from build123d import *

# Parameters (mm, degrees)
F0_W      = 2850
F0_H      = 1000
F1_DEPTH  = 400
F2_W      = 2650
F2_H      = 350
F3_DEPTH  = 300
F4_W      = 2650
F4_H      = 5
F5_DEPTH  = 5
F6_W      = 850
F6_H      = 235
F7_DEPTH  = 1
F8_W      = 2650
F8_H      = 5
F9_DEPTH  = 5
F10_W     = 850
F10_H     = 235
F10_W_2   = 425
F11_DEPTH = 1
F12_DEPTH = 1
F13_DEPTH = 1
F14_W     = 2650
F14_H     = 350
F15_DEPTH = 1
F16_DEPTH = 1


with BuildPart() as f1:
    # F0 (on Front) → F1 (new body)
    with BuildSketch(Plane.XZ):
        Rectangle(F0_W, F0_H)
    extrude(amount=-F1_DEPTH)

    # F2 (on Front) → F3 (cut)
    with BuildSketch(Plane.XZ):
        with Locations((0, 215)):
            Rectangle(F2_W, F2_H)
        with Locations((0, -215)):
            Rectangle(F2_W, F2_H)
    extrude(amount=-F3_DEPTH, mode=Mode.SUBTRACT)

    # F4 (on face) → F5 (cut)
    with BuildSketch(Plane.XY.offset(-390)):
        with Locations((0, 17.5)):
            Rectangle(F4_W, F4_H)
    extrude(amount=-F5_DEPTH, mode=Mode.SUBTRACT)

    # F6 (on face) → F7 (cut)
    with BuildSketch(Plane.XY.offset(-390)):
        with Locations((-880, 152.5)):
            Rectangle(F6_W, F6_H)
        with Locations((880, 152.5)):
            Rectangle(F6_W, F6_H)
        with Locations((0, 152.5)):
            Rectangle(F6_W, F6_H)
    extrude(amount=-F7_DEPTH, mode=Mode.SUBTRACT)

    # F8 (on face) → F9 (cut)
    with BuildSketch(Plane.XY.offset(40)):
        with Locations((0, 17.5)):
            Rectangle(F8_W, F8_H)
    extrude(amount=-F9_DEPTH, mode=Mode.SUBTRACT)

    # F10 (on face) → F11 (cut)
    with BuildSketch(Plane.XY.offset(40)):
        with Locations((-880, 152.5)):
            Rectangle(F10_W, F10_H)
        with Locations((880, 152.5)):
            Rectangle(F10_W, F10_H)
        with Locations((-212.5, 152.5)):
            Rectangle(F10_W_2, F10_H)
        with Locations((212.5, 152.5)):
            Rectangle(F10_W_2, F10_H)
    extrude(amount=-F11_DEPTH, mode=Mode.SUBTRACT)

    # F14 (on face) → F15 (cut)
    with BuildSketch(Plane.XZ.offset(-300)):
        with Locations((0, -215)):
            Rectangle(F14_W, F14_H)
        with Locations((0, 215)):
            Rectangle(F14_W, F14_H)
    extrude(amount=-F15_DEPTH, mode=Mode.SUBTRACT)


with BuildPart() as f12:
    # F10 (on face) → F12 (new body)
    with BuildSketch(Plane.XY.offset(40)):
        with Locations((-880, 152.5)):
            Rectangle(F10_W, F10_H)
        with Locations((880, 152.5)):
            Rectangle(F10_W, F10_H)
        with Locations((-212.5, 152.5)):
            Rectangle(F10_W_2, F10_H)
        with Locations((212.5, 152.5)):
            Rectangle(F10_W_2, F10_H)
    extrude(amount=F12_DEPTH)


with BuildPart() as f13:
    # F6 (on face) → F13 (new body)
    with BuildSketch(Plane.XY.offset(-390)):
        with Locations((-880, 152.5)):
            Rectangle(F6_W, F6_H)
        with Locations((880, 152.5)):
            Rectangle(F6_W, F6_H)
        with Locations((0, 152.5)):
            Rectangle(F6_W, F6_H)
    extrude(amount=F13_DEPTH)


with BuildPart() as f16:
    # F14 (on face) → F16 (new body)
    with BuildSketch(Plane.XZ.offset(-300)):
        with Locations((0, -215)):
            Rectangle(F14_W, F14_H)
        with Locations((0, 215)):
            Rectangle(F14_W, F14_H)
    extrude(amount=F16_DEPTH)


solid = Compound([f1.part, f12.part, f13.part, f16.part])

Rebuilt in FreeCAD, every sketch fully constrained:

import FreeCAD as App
import Part
import Sketcher

doc = App.newDocument("Part")
params = doc.addObject("Spreadsheet::Sheet", "Params")
for row, (alias, value) in enumerate([
    ("sketch1_width", "2850 mm"),
    ("sketch1_height", "1000 mm"),
    ("pad1_length", "400 mm"),
    ("sketch2_width", "2650 mm"),
    ("sketch2_height", "350 mm"),
    ("pocket1_length", "300 mm"),
    ("sketch3_width", "2650 mm"),
    ("sketch3_height", "5 mm"),
    ("pocket2_length", "5 mm"),
    ("sketch4_width", "850 mm"),
    ("sketch4_height", "235 mm"),
    ("pocket3_length", "1 mm"),
    ("sketch5_width", "2650 mm"),
    ("sketch5_height", "5 mm"),
    ("pocket4_length", "5 mm"),
    ("sketch6_width", "850 mm"),
    ("sketch6_height", "235 mm"),
    ("pocket5_length", "1 mm"),
    ("sketch7_width", "2650 mm"),
    ("sketch7_height", "350 mm"),
    ("pocket6_length", "1 mm"),
    ("sketch8_width", "850 mm"),
    ("sketch8_height", "235 mm"),
    ("pad2_length", "1 mm"),
    ("sketch9_width", "850 mm"),
    ("sketch9_height", "235 mm"),
    ("pad3_length", "1 mm"),
    ("sketch10_width", "2650 mm"),
    ("sketch10_height", "350 mm"),
    ("pad4_length", "1 mm"),
], start=1):
    params.set(f"A{row}", alias)
    params.set(f"B{row}", "=" + value)
    params.setAlias(f"B{row}", alias)

body = doc.addObject("PartDesign::Body", "Body")

# Sketch on XZ plane
sketch1 = body.newObject("Sketcher::SketchObject", "Sketch")
sketch1.AttachmentSupport = (doc.getObject("XZ_Plane"), [""])
sketch1.MapMode = "FlatFace"
sketch1.addGeometry(Part.LineSegment(App.Vector(-1425, 500, 0), App.Vector(-1425, -500, 0)), False)
sketch1.addGeometry(Part.LineSegment(App.Vector(-1425, -500, 0), App.Vector(1425, -500, 0)), False)
sketch1.addGeometry(Part.LineSegment(App.Vector(1425, -500, 0), App.Vector(1425, 500, 0)), False)
sketch1.addGeometry(Part.LineSegment(App.Vector(1425, 500, 0), App.Vector(-1425, 500, 0)), False)
sketch1.addConstraint(Sketcher.Constraint("Coincident", 0, 2, 1, 1))
sketch1.addConstraint(Sketcher.Constraint("Coincident", 1, 2, 2, 1))
sketch1.addConstraint(Sketcher.Constraint("Coincident", 2, 2, 3, 1))
sketch1.addConstraint(Sketcher.Constraint("Coincident", 3, 2, 0, 1))
sketch1.addConstraint(Sketcher.Constraint("Vertical", 0))
sketch1.addConstraint(Sketcher.Constraint("Horizontal", 1))
sketch1.addConstraint(Sketcher.Constraint("Vertical", 2))
sketch1.addConstraint(Sketcher.Constraint("Horizontal", 3))
sketch1.addConstraint(Sketcher.Constraint("Symmetric", 0, 2, 2, 2, -1, 1))
sketch1.addConstraint(Sketcher.Constraint("DistanceX", 1, 1, 1, 2, 2850.0))
sketch1.addConstraint(Sketcher.Constraint("DistanceY", 0, 2, 0, 1, 1000.0))
sketch1.setExpression("Constraints[9]", "Params.sketch1_width")
sketch1.setExpression("Constraints[10]", "Params.sketch1_height")
pad1 = body.newObject("PartDesign::Pad", "Pad")
pad1.Profile = sketch1
pad1.setExpression("Length", "Params.pad1_length")
pad1.Reversed = True

# Sketch on XZ plane
sketch2 = body.newObject("Sketcher::SketchObject", "Sketch001")
sketch2.AttachmentSupport = (doc.getObject("XZ_Plane"), [""])
sketch2.MapMode = "FlatFace"
sketch2.addGeometry(Part.LineSegment(App.Vector(-1325, 390, 0), App.Vector(-1325, 40, 0)), False)
sketch2.addGeometry(Part.LineSegment(App.Vector(-1325, 40, 0), App.Vector(1325, 40, 0)), False)
sketch2.addGeometry(Part.LineSegment(App.Vector(1325, 40, 0), App.Vector(1325, 390, 0)), False)
sketch2.addGeometry(Part.LineSegment(App.Vector(1325, 390, 0), App.Vector(-1325, 390, 0)), False)
sketch2.addGeometry(Part.LineSegment(App.Vector(-1325, -40, 0), App.Vector(-1325, -390, 0)), False)
sketch2.addGeometry(Part.LineSegment(App.Vector(-1325, -390, 0), App.Vector(1325, -390, 0)), False)
sketch2.addGeometry(Part.LineSegment(App.Vector(1325, -390, 0), App.Vector(1325, -40, 0)), False)
sketch2.addGeometry(Part.LineSegment(App.Vector(1325, -40, 0), App.Vector(-1325, -40, 0)), False)
sketch2.addConstraint(Sketcher.Constraint("Coincident", 0, 2, 1, 1))
sketch2.addConstraint(Sketcher.Constraint("Coincident", 1, 2, 2, 1))
sketch2.addConstraint(Sketcher.Constraint("Coincident", 2, 2, 3, 1))
sketch2.addConstraint(Sketcher.Constraint("Coincident", 3, 2, 0, 1))
sketch2.addConstraint(Sketcher.Constraint("Coincident", 4, 2, 5, 1))
sketch2.addConstraint(Sketcher.Constraint("Coincident", 5, 2, 6, 1))
sketch2.addConstraint(Sketcher.Constraint("Coincident", 6, 2, 7, 1))
sketch2.addConstraint(Sketcher.Constraint("Coincident", 7, 2, 4, 1))
sketch2.addConstraint(Sketcher.Constraint("Vertical", 0))
sketch2.addConstraint(Sketcher.Constraint("Horizontal", 1))
sketch2.addConstraint(Sketcher.Constraint("Vertical", 2))
sketch2.addConstraint(Sketcher.Constraint("Horizontal", 3))
sketch2.addConstraint(Sketcher.Constraint("Vertical", 4))
sketch2.addConstraint(Sketcher.Constraint("Horizontal", 5))
sketch2.addConstraint(Sketcher.Constraint("Vertical", 6))
sketch2.addConstraint(Sketcher.Constraint("Horizontal", 7))
sketch2.addConstraint(Sketcher.Constraint("Symmetric", 2, 2, 4, 2, -1, 1))
sketch2.addConstraint(Sketcher.Constraint("Symmetric", 0, 2, 6, 2, -1, 1))
sketch2.addConstraint(Sketcher.Constraint("Vertical", 3, 2, 4, 2))
sketch2.addConstraint(Sketcher.Constraint("DistanceX", 1, 1, 1, 2, 2650.0))
sketch2.addConstraint(Sketcher.Constraint("DistanceY", 0, 2, 0, 1, 350.0))
sketch2.addConstraint(Sketcher.Constraint("DistanceY", -1, 1, 0, 2, 40.0))
sketch2.setExpression("Constraints[19]", "Params.sketch2_width")
sketch2.setExpression("Constraints[20]", "Params.sketch2_height")
pocket1 = body.newObject("PartDesign::Pocket", "Pocket")
pocket1.Profile = sketch2
pocket1.setExpression("Length", "Params.pocket1_length")

# Sketch on XY plane
sketch3 = body.newObject("Sketcher::SketchObject", "Sketch002")
sketch3.AttachmentSupport = (doc.getObject("XY_Plane"), [""])
sketch3.MapMode = "FlatFace"
sketch3.AttachmentOffset = App.Placement(App.Vector(0, 0, -390), App.Rotation())
sketch3.addGeometry(Part.LineSegment(App.Vector(-1325, 20, 0), App.Vector(-1325, 15, 0)), False)
sketch3.addGeometry(Part.LineSegment(App.Vector(-1325, 15, 0), App.Vector(1325, 15, 0)), False)
sketch3.addGeometry(Part.LineSegment(App.Vector(1325, 15, 0), App.Vector(1325, 20, 0)), False)
sketch3.addGeometry(Part.LineSegment(App.Vector(1325, 20, 0), App.Vector(-1325, 20, 0)), False)
sketch3.addConstraint(Sketcher.Constraint("Coincident", 0, 2, 1, 1))
sketch3.addConstraint(Sketcher.Constraint("Coincident", 1, 2, 2, 1))
sketch3.addConstraint(Sketcher.Constraint("Coincident", 2, 2, 3, 1))
sketch3.addConstraint(Sketcher.Constraint("Coincident", 3, 2, 0, 1))
sketch3.addConstraint(Sketcher.Constraint("Vertical", 0))
sketch3.addConstraint(Sketcher.Constraint("Horizontal", 1))
sketch3.addConstraint(Sketcher.Constraint("Vertical", 2))
sketch3.addConstraint(Sketcher.Constraint("Horizontal", 3))
sketch3.addConstraint(Sketcher.Constraint("DistanceX", 1, 1, 1, 2, 2650.0))
sketch3.addConstraint(Sketcher.Constraint("DistanceY", 0, 2, 0, 1, 5.0))
sketch3.addConstraint(Sketcher.Constraint("DistanceX", 0, 2, -1, 1, 1325.0))
sketch3.addConstraint(Sketcher.Constraint("DistanceY", -1, 1, 0, 2, 15.0))
sketch3.setExpression("Constraints[8]", "Params.sketch3_width")
sketch3.setExpression("Constraints[9]", "Params.sketch3_height")
pocket2 = body.newObject("PartDesign::Pocket", "Pocket001")
pocket2.Profile = sketch3
pocket2.setExpression("Length", "Params.pocket2_length")

# Sketch on XY plane
sketch4 = body.newObject("Sketcher::SketchObject", "Sketch003")
sketch4.AttachmentSupport = (doc.getObject("XY_Plane"), [""])
sketch4.MapMode = "FlatFace"
sketch4.AttachmentOffset = App.Placement(App.Vector(0, 0, -390), App.Rotation())
sketch4.addGeometry(Part.LineSegment(App.Vector(-1305, 270, 0), App.Vector(-1305, 35, 0)), False)
sketch4.addGeometry(Part.LineSegment(App.Vector(-1305, 35, 0), App.Vector(-455, 35, 0)), False)
sketch4.addGeometry(Part.LineSegment(App.Vector(-455, 35, 0), App.Vector(-455, 270, 0)), False)
sketch4.addGeometry(Part.LineSegment(App.Vector(-455, 270, 0), App.Vector(-1305, 270, 0)), False)
sketch4.addGeometry(Part.LineSegment(App.Vector(455, 270, 0), App.Vector(455, 35, 0)), False)
sketch4.addGeometry(Part.LineSegment(App.Vector(455, 35, 0), App.Vector(1305, 35, 0)), False)
sketch4.addGeometry(Part.LineSegment(App.Vector(1305, 35, 0), App.Vector(1305, 270, 0)), False)
sketch4.addGeometry(Part.LineSegment(App.Vector(1305, 270, 0), App.Vector(455, 270, 0)), False)
sketch4.addGeometry(Part.LineSegment(App.Vector(-425, 270, 0), App.Vector(-425, 35, 0)), False)
sketch4.addGeometry(Part.LineSegment(App.Vector(-425, 35, 0), App.Vector(425, 35, 0)), False)
sketch4.addGeometry(Part.LineSegment(App.Vector(425, 35, 0), App.Vector(425, 270, 0)), False)
sketch4.addGeometry(Part.LineSegment(App.Vector(425, 270, 0), App.Vector(-425, 270, 0)), False)
sketch4.addConstraint(Sketcher.Constraint("Coincident", 0, 2, 1, 1))
sketch4.addConstraint(Sketcher.Constraint("Coincident", 1, 2, 2, 1))
sketch4.addConstraint(Sketcher.Constraint("Coincident", 2, 2, 3, 1))
sketch4.addConstraint(Sketcher.Constraint("Coincident", 3, 2, 0, 1))
sketch4.addConstraint(Sketcher.Constraint("Coincident", 4, 2, 5, 1))
sketch4.addConstraint(Sketcher.Constraint("Coincident", 5, 2, 6, 1))
sketch4.addConstraint(Sketcher.Constraint("Coincident", 6, 2, 7, 1))
sketch4.addConstraint(Sketcher.Constraint("Coincident", 7, 2, 4, 1))
sketch4.addConstraint(Sketcher.Constraint("Coincident", 8, 2, 9, 1))
sketch4.addConstraint(Sketcher.Constraint("Coincident", 9, 2, 10, 1))
sketch4.addConstraint(Sketcher.Constraint("Coincident", 10, 2, 11, 1))
sketch4.addConstraint(Sketcher.Constraint("Coincident", 11, 2, 8, 1))
sketch4.addConstraint(Sketcher.Constraint("Vertical", 0))
sketch4.addConstraint(Sketcher.Constraint("Horizontal", 1))
sketch4.addConstraint(Sketcher.Constraint("Vertical", 2))
sketch4.addConstraint(Sketcher.Constraint("Horizontal", 3))
sketch4.addConstraint(Sketcher.Constraint("Vertical", 4))
sketch4.addConstraint(Sketcher.Constraint("Horizontal", 5))
sketch4.addConstraint(Sketcher.Constraint("Vertical", 6))
sketch4.addConstraint(Sketcher.Constraint("Horizontal", 7))
sketch4.addConstraint(Sketcher.Constraint("Vertical", 8))
sketch4.addConstraint(Sketcher.Constraint("Horizontal", 9))
sketch4.addConstraint(Sketcher.Constraint("Vertical", 10))
sketch4.addConstraint(Sketcher.Constraint("Horizontal", 11))
sketch4.addConstraint(Sketcher.Constraint("Symmetric", 1, 2, 4, 2, -2))
sketch4.addConstraint(Sketcher.Constraint("Symmetric", 3, 2, 6, 2, -2))
sketch4.addConstraint(Sketcher.Constraint("Horizontal", 5, 2, 8, 2))
sketch4.addConstraint(Sketcher.Constraint("Horizontal", 7, 2, 10, 2))
sketch4.addConstraint(Sketcher.Constraint("Equal", 7, 9))
sketch4.addConstraint(Sketcher.Constraint("DistanceX", 1, 1, 1, 2, 850.0))
sketch4.addConstraint(Sketcher.Constraint("DistanceY", 0, 2, 0, 1, 235.0))
sketch4.addConstraint(Sketcher.Constraint("DistanceX", 0, 2, -1, 1, 1305.0))
sketch4.addConstraint(Sketcher.Constraint("DistanceY", -1, 1, 0, 2, 35.0))
sketch4.addConstraint(Sketcher.Constraint("DistanceX", 8, 2, -1, 1, 425.0))
sketch4.setExpression("Constraints[29]", "Params.sketch4_width")
sketch4.setExpression("Constraints[30]", "Params.sketch4_height")
pocket3 = body.newObject("PartDesign::Pocket", "Pocket002")
pocket3.Profile = sketch4
pocket3.setExpression("Length", "Params.pocket3_length")

# Sketch on XY plane
sketch5 = body.newObject("Sketcher::SketchObject", "Sketch004")
sketch5.AttachmentSupport = (doc.getObject("XY_Plane"), [""])
sketch5.MapMode = "FlatFace"
sketch5.AttachmentOffset = App.Placement(App.Vector(0, 0, 40), App.Rotation())
sketch5.addGeometry(Part.LineSegment(App.Vector(-1325, 20, 0), App.Vector(-1325, 15, 0)), False)
sketch5.addGeometry(Part.LineSegment(App.Vector(-1325, 15, 0), App.Vector(1325, 15, 0)), False)
sketch5.addGeometry(Part.LineSegment(App.Vector(1325, 15, 0), App.Vector(1325, 20, 0)), False)
sketch5.addGeometry(Part.LineSegment(App.Vector(1325, 20, 0), App.Vector(-1325, 20, 0)), False)
sketch5.addConstraint(Sketcher.Constraint("Coincident", 0, 2, 1, 1))
sketch5.addConstraint(Sketcher.Constraint("Coincident", 1, 2, 2, 1))
sketch5.addConstraint(Sketcher.Constraint("Coincident", 2, 2, 3, 1))
sketch5.addConstraint(Sketcher.Constraint("Coincident", 3, 2, 0, 1))
sketch5.addConstraint(Sketcher.Constraint("Vertical", 0))
sketch5.addConstraint(Sketcher.Constraint("Horizontal", 1))
sketch5.addConstraint(Sketcher.Constraint("Vertical", 2))
sketch5.addConstraint(Sketcher.Constraint("Horizontal", 3))
sketch5.addConstraint(Sketcher.Constraint("DistanceX", 1, 1, 1, 2, 2650.0))
sketch5.addConstraint(Sketcher.Constraint("DistanceY", 0, 2, 0, 1, 5.0))
sketch5.addConstraint(Sketcher.Constraint("DistanceX", 0, 2, -1, 1, 1325.0))
sketch5.addConstraint(Sketcher.Constraint("DistanceY", -1, 1, 0, 2, 15.0))
sketch5.setExpression("Constraints[8]", "Params.sketch5_width")
sketch5.setExpression("Constraints[9]", "Params.sketch5_height")
pocket4 = body.newObject("PartDesign::Pocket", "Pocket003")
pocket4.Profile = sketch5
pocket4.setExpression("Length", "Params.pocket4_length")

# Sketch on XY plane
sketch6 = body.newObject("Sketcher::SketchObject", "Sketch005")
sketch6.AttachmentSupport = (doc.getObject("XY_Plane"), [""])
sketch6.MapMode = "FlatFace"
sketch6.AttachmentOffset = App.Placement(App.Vector(0, 0, 40), App.Rotation())
sketch6.addGeometry(Part.LineSegment(App.Vector(-1305, 270, 0), App.Vector(-1305, 35, 0)), False)
sketch6.addGeometry(Part.LineSegment(App.Vector(-1305, 35, 0), App.Vector(-455, 35, 0)), False)
sketch6.addGeometry(Part.LineSegment(App.Vector(-455, 35, 0), App.Vector(-455, 270, 0)), False)
sketch6.addGeometry(Part.LineSegment(App.Vector(-455, 270, 0), App.Vector(-1305, 270, 0)), False)
sketch6.addGeometry(Part.LineSegment(App.Vector(455, 270, 0), App.Vector(455, 35, 0)), False)
sketch6.addGeometry(Part.LineSegment(App.Vector(455, 35, 0), App.Vector(1305, 35, 0)), False)
sketch6.addGeometry(Part.LineSegment(App.Vector(1305, 35, 0), App.Vector(1305, 270, 0)), False)
sketch6.addGeometry(Part.LineSegment(App.Vector(1305, 270, 0), App.Vector(455, 270, 0)), False)
sketch6.addGeometry(Part.LineSegment(App.Vector(-425, 270, 0), App.Vector(-425, 35, 0)), False)
sketch6.addGeometry(Part.LineSegment(App.Vector(-425, 35, 0), App.Vector(425, 35, 0)), False)
sketch6.addGeometry(Part.LineSegment(App.Vector(425, 35, 0), App.Vector(425, 270, 0)), False)
sketch6.addGeometry(Part.LineSegment(App.Vector(425, 270, 0), App.Vector(-425, 270, 0)), False)
sketch6.addConstraint(Sketcher.Constraint("Coincident", 0, 2, 1, 1))
sketch6.addConstraint(Sketcher.Constraint("Coincident", 1, 2, 2, 1))
sketch6.addConstraint(Sketcher.Constraint("Coincident", 2, 2, 3, 1))
sketch6.addConstraint(Sketcher.Constraint("Coincident", 3, 2, 0, 1))
sketch6.addConstraint(Sketcher.Constraint("Coincident", 4, 2, 5, 1))
sketch6.addConstraint(Sketcher.Constraint("Coincident", 5, 2, 6, 1))
sketch6.addConstraint(Sketcher.Constraint("Coincident", 6, 2, 7, 1))
sketch6.addConstraint(Sketcher.Constraint("Coincident", 7, 2, 4, 1))
sketch6.addConstraint(Sketcher.Constraint("Coincident", 8, 2, 9, 1))
sketch6.addConstraint(Sketcher.Constraint("Coincident", 9, 2, 10, 1))
sketch6.addConstraint(Sketcher.Constraint("Coincident", 10, 2, 11, 1))
sketch6.addConstraint(Sketcher.Constraint("Coincident", 11, 2, 8, 1))
sketch6.addConstraint(Sketcher.Constraint("Vertical", 0))
sketch6.addConstraint(Sketcher.Constraint("Horizontal", 1))
sketch6.addConstraint(Sketcher.Constraint("Vertical", 2))
sketch6.addConstraint(Sketcher.Constraint("Horizontal", 3))
sketch6.addConstraint(Sketcher.Constraint("Vertical", 4))
sketch6.addConstraint(Sketcher.Constraint("Horizontal", 5))
sketch6.addConstraint(Sketcher.Constraint("Vertical", 6))
sketch6.addConstraint(Sketcher.Constraint("Horizontal", 7))
sketch6.addConstraint(Sketcher.Constraint("Vertical", 8))
sketch6.addConstraint(Sketcher.Constraint("Horizontal", 9))
sketch6.addConstraint(Sketcher.Constraint("Vertical", 10))
sketch6.addConstraint(Sketcher.Constraint("Horizontal", 11))
sketch6.addConstraint(Sketcher.Constraint("Symmetric", 1, 2, 4, 2, -2))
sketch6.addConstraint(Sketcher.Constraint("Symmetric", 3, 2, 6, 2, -2))
sketch6.addConstraint(Sketcher.Constraint("Horizontal", 5, 2, 8, 2))
sketch6.addConstraint(Sketcher.Constraint("Horizontal", 7, 2, 10, 2))
sketch6.addConstraint(Sketcher.Constraint("Equal", 7, 9))
sketch6.addConstraint(Sketcher.Constraint("DistanceX", 1, 1, 1, 2, 850.0))
sketch6.addConstraint(Sketcher.Constraint("DistanceY", 0, 2, 0, 1, 235.0))
sketch6.addConstraint(Sketcher.Constraint("DistanceX", 0, 2, -1, 1, 1305.0))
sketch6.addConstraint(Sketcher.Constraint("DistanceY", -1, 1, 0, 2, 35.0))
sketch6.addConstraint(Sketcher.Constraint("DistanceX", 8, 2, -1, 1, 425.0))
sketch6.setExpression("Constraints[29]", "Params.sketch6_width")
sketch6.setExpression("Constraints[30]", "Params.sketch6_height")
pocket5 = body.newObject("PartDesign::Pocket", "Pocket004")
pocket5.Profile = sketch6
pocket5.setExpression("Length", "Params.pocket5_length")

# Sketch on XZ plane
sketch7 = body.newObject("Sketcher::SketchObject", "Sketch006")
sketch7.AttachmentSupport = (doc.getObject("XZ_Plane"), [""])
sketch7.MapMode = "FlatFace"
sketch7.AttachmentOffset = App.Placement(App.Vector(0, 0, -300), App.Rotation())
sketch7.addGeometry(Part.LineSegment(App.Vector(-1325, -40, 0), App.Vector(-1325, -390, 0)), False)
sketch7.addGeometry(Part.LineSegment(App.Vector(-1325, -390, 0), App.Vector(1325, -390, 0)), False)
sketch7.addGeometry(Part.LineSegment(App.Vector(1325, -390, 0), App.Vector(1325, -40, 0)), False)
sketch7.addGeometry(Part.LineSegment(App.Vector(1325, -40, 0), App.Vector(-1325, -40, 0)), False)
sketch7.addGeometry(Part.LineSegment(App.Vector(-1325, 390, 0), App.Vector(-1325, 40, 0)), False)
sketch7.addGeometry(Part.LineSegment(App.Vector(-1325, 40, 0), App.Vector(1325, 40, 0)), False)
sketch7.addGeometry(Part.LineSegment(App.Vector(1325, 40, 0), App.Vector(1325, 390, 0)), False)
sketch7.addGeometry(Part.LineSegment(App.Vector(1325, 390, 0), App.Vector(-1325, 390, 0)), False)
sketch7.addConstraint(Sketcher.Constraint("Coincident", 0, 2, 1, 1))
sketch7.addConstraint(Sketcher.Constraint("Coincident", 1, 2, 2, 1))
sketch7.addConstraint(Sketcher.Constraint("Coincident", 2, 2, 3, 1))
sketch7.addConstraint(Sketcher.Constraint("Coincident", 3, 2, 0, 1))
sketch7.addConstraint(Sketcher.Constraint("Coincident", 4, 2, 5, 1))
sketch7.addConstraint(Sketcher.Constraint("Coincident", 5, 2, 6, 1))
sketch7.addConstraint(Sketcher.Constraint("Coincident", 6, 2, 7, 1))
sketch7.addConstraint(Sketcher.Constraint("Coincident", 7, 2, 4, 1))
sketch7.addConstraint(Sketcher.Constraint("Vertical", 0))
sketch7.addConstraint(Sketcher.Constraint("Horizontal", 1))
sketch7.addConstraint(Sketcher.Constraint("Vertical", 2))
sketch7.addConstraint(Sketcher.Constraint("Horizontal", 3))
sketch7.addConstraint(Sketcher.Constraint("Vertical", 4))
sketch7.addConstraint(Sketcher.Constraint("Horizontal", 5))
sketch7.addConstraint(Sketcher.Constraint("Vertical", 6))
sketch7.addConstraint(Sketcher.Constraint("Horizontal", 7))
sketch7.addConstraint(Sketcher.Constraint("Symmetric", 2, 2, 4, 2, -1, 1))
sketch7.addConstraint(Sketcher.Constraint("Symmetric", 0, 2, 6, 2, -1, 1))
sketch7.addConstraint(Sketcher.Constraint("Vertical", 3, 2, 4, 2))
sketch7.addConstraint(Sketcher.Constraint("DistanceX", 1, 1, 1, 2, 2650.0))
sketch7.addConstraint(Sketcher.Constraint("DistanceY", 0, 2, 0, 1, 350.0))
sketch7.addConstraint(Sketcher.Constraint("DistanceY", 0, 2, -1, 1, 390.0))
sketch7.setExpression("Constraints[19]", "Params.sketch7_width")
sketch7.setExpression("Constraints[20]", "Params.sketch7_height")
pocket6 = body.newObject("PartDesign::Pocket", "Pocket005")
pocket6.Profile = sketch7
pocket6.setExpression("Length", "Params.pocket6_length")
body2 = doc.addObject("PartDesign::Body", "Body001")
body2.AllowCompound = True

# Sketch on XY plane
sketch8 = body2.newObject("Sketcher::SketchObject", "Sketch007")
sketch8.AttachmentSupport = (doc.getObject("XY_Plane001"), [""])
sketch8.MapMode = "FlatFace"
sketch8.AttachmentOffset = App.Placement(App.Vector(0, 0, 40), App.Rotation())
sketch8.addGeometry(Part.LineSegment(App.Vector(-1305, 270, 0), App.Vector(-1305, 35, 0)), False)
sketch8.addGeometry(Part.LineSegment(App.Vector(-1305, 35, 0), App.Vector(-455, 35, 0)), False)
sketch8.addGeometry(Part.LineSegment(App.Vector(-455, 35, 0), App.Vector(-455, 270, 0)), False)
sketch8.addGeometry(Part.LineSegment(App.Vector(-455, 270, 0), App.Vector(-1305, 270, 0)), False)
sketch8.addGeometry(Part.LineSegment(App.Vector(455, 270, 0), App.Vector(455, 35, 0)), False)
sketch8.addGeometry(Part.LineSegment(App.Vector(455, 35, 0), App.Vector(1305, 35, 0)), False)
sketch8.addGeometry(Part.LineSegment(App.Vector(1305, 35, 0), App.Vector(1305, 270, 0)), False)
sketch8.addGeometry(Part.LineSegment(App.Vector(1305, 270, 0), App.Vector(455, 270, 0)), False)
sketch8.addGeometry(Part.LineSegment(App.Vector(-425, 270, 0), App.Vector(-425, 35, 0)), False)
sketch8.addGeometry(Part.LineSegment(App.Vector(-425, 35, 0), App.Vector(425, 35, 0)), False)
sketch8.addGeometry(Part.LineSegment(App.Vector(425, 35, 0), App.Vector(425, 270, 0)), False)
sketch8.addGeometry(Part.LineSegment(App.Vector(425, 270, 0), App.Vector(-425, 270, 0)), False)
sketch8.addConstraint(Sketcher.Constraint("Coincident", 0, 2, 1, 1))
sketch8.addConstraint(Sketcher.Constraint("Coincident", 1, 2, 2, 1))
sketch8.addConstraint(Sketcher.Constraint("Coincident", 2, 2, 3, 1))
sketch8.addConstraint(Sketcher.Constraint("Coincident", 3, 2, 0, 1))
sketch8.addConstraint(Sketcher.Constraint("Coincident", 4, 2, 5, 1))
sketch8.addConstraint(Sketcher.Constraint("Coincident", 5, 2, 6, 1))
sketch8.addConstraint(Sketcher.Constraint("Coincident", 6, 2, 7, 1))
sketch8.addConstraint(Sketcher.Constraint("Coincident", 7, 2, 4, 1))
sketch8.addConstraint(Sketcher.Constraint("Coincident", 8, 2, 9, 1))
sketch8.addConstraint(Sketcher.Constraint("Coincident", 9, 2, 10, 1))
sketch8.addConstraint(Sketcher.Constraint("Coincident", 10, 2, 11, 1))
sketch8.addConstraint(Sketcher.Constraint("Coincident", 11, 2, 8, 1))
sketch8.addConstraint(Sketcher.Constraint("Vertical", 0))
sketch8.addConstraint(Sketcher.Constraint("Horizontal", 1))
sketch8.addConstraint(Sketcher.Constraint("Vertical", 2))
sketch8.addConstraint(Sketcher.Constraint("Horizontal", 3))
sketch8.addConstraint(Sketcher.Constraint("Vertical", 4))
sketch8.addConstraint(Sketcher.Constraint("Horizontal", 5))
sketch8.addConstraint(Sketcher.Constraint("Vertical", 6))
sketch8.addConstraint(Sketcher.Constraint("Horizontal", 7))
sketch8.addConstraint(Sketcher.Constraint("Vertical", 8))
sketch8.addConstraint(Sketcher.Constraint("Horizontal", 9))
sketch8.addConstraint(Sketcher.Constraint("Vertical", 10))
sketch8.addConstraint(Sketcher.Constraint("Horizontal", 11))
sketch8.addConstraint(Sketcher.Constraint("Symmetric", 1, 2, 4, 2, -2))
sketch8.addConstraint(Sketcher.Constraint("Symmetric", 3, 2, 6, 2, -2))
sketch8.addConstraint(Sketcher.Constraint("Horizontal", 5, 2, 8, 2))
sketch8.addConstraint(Sketcher.Constraint("Horizontal", 7, 2, 10, 2))
sketch8.addConstraint(Sketcher.Constraint("Equal", 7, 9))
sketch8.addConstraint(Sketcher.Constraint("DistanceX", 1, 1, 1, 2, 850.0))
sketch8.addConstraint(Sketcher.Constraint("DistanceY", 0, 2, 0, 1, 235.0))
sketch8.addConstraint(Sketcher.Constraint("DistanceX", 0, 2, -1, 1, 1305.0))
sketch8.addConstraint(Sketcher.Constraint("DistanceY", -1, 1, 0, 2, 35.0))
sketch8.addConstraint(Sketcher.Constraint("DistanceX", 8, 2, -1, 1, 425.0))
sketch8.setExpression("Constraints[29]", "Params.sketch8_width")
sketch8.setExpression("Constraints[30]", "Params.sketch8_height")
pad2 = body2.newObject("PartDesign::Pad", "Pad001")
pad2.Profile = sketch8
pad2.setExpression("Length", "Params.pad2_length")
body3 = doc.addObject("PartDesign::Body", "Body002")
body3.AllowCompound = True

# Sketch on XY plane
sketch9 = body3.newObject("Sketcher::SketchObject", "Sketch008")
sketch9.AttachmentSupport = (doc.getObject("XY_Plane002"), [""])
sketch9.MapMode = "FlatFace"
sketch9.AttachmentOffset = App.Placement(App.Vector(0, 0, -390), App.Rotation())
sketch9.addGeometry(Part.LineSegment(App.Vector(-1305, 270, 0), App.Vector(-1305, 35, 0)), False)
sketch9.addGeometry(Part.LineSegment(App.Vector(-1305, 35, 0), App.Vector(-455, 35, 0)), False)
sketch9.addGeometry(Part.LineSegment(App.Vector(-455, 35, 0), App.Vector(-455, 270, 0)), False)
sketch9.addGeometry(Part.LineSegment(App.Vector(-455, 270, 0), App.Vector(-1305, 270, 0)), False)
sketch9.addGeometry(Part.LineSegment(App.Vector(455, 270, 0), App.Vector(455, 35, 0)), False)
sketch9.addGeometry(Part.LineSegment(App.Vector(455, 35, 0), App.Vector(1305, 35, 0)), False)
sketch9.addGeometry(Part.LineSegment(App.Vector(1305, 35, 0), App.Vector(1305, 270, 0)), False)
sketch9.addGeometry(Part.LineSegment(App.Vector(1305, 270, 0), App.Vector(455, 270, 0)), False)
sketch9.addGeometry(Part.LineSegment(App.Vector(-425, 270, 0), App.Vector(-425, 35, 0)), False)
sketch9.addGeometry(Part.LineSegment(App.Vector(-425, 35, 0), App.Vector(425, 35, 0)), False)
sketch9.addGeometry(Part.LineSegment(App.Vector(425, 35, 0), App.Vector(425, 270, 0)), False)
sketch9.addGeometry(Part.LineSegment(App.Vector(425, 270, 0), App.Vector(-425, 270, 0)), False)
sketch9.addConstraint(Sketcher.Constraint("Coincident", 0, 2, 1, 1))
sketch9.addConstraint(Sketcher.Constraint("Coincident", 1, 2, 2, 1))
sketch9.addConstraint(Sketcher.Constraint("Coincident", 2, 2, 3, 1))
sketch9.addConstraint(Sketcher.Constraint("Coincident", 3, 2, 0, 1))
sketch9.addConstraint(Sketcher.Constraint("Coincident", 4, 2, 5, 1))
sketch9.addConstraint(Sketcher.Constraint("Coincident", 5, 2, 6, 1))
sketch9.addConstraint(Sketcher.Constraint("Coincident", 6, 2, 7, 1))
sketch9.addConstraint(Sketcher.Constraint("Coincident", 7, 2, 4, 1))
sketch9.addConstraint(Sketcher.Constraint("Coincident", 8, 2, 9, 1))
sketch9.addConstraint(Sketcher.Constraint("Coincident", 9, 2, 10, 1))
sketch9.addConstraint(Sketcher.Constraint("Coincident", 10, 2, 11, 1))
sketch9.addConstraint(Sketcher.Constraint("Coincident", 11, 2, 8, 1))
sketch9.addConstraint(Sketcher.Constraint("Vertical", 0))
sketch9.addConstraint(Sketcher.Constraint("Horizontal", 1))
sketch9.addConstraint(Sketcher.Constraint("Vertical", 2))
sketch9.addConstraint(Sketcher.Constraint("Horizontal", 3))
sketch9.addConstraint(Sketcher.Constraint("Vertical", 4))
sketch9.addConstraint(Sketcher.Constraint("Horizontal", 5))
sketch9.addConstraint(Sketcher.Constraint("Vertical", 6))
sketch9.addConstraint(Sketcher.Constraint("Horizontal", 7))
sketch9.addConstraint(Sketcher.Constraint("Vertical", 8))
sketch9.addConstraint(Sketcher.Constraint("Horizontal", 9))
sketch9.addConstraint(Sketcher.Constraint("Vertical", 10))
sketch9.addConstraint(Sketcher.Constraint("Horizontal", 11))
sketch9.addConstraint(Sketcher.Constraint("Symmetric", 1, 2, 4, 2, -2))
sketch9.addConstraint(Sketcher.Constraint("Symmetric", 3, 2, 6, 2, -2))
sketch9.addConstraint(Sketcher.Constraint("Horizontal", 5, 2, 8, 2))
sketch9.addConstraint(Sketcher.Constraint("Horizontal", 7, 2, 10, 2))
sketch9.addConstraint(Sketcher.Constraint("Equal", 7, 9))
sketch9.addConstraint(Sketcher.Constraint("DistanceX", 1, 1, 1, 2, 850.0))
sketch9.addConstraint(Sketcher.Constraint("DistanceY", 0, 2, 0, 1, 235.0))
sketch9.addConstraint(Sketcher.Constraint("DistanceX", 0, 2, -1, 1, 1305.0))
sketch9.addConstraint(Sketcher.Constraint("DistanceY", -1, 1, 0, 2, 35.0))
sketch9.addConstraint(Sketcher.Constraint("DistanceX", 8, 2, -1, 1, 425.0))
sketch9.setExpression("Constraints[29]", "Params.sketch9_width")
sketch9.setExpression("Constraints[30]", "Params.sketch9_height")
pad3 = body3.newObject("PartDesign::Pad", "Pad002")
pad3.Profile = sketch9
pad3.setExpression("Length", "Params.pad3_length")
body4 = doc.addObject("PartDesign::Body", "Body003")
body4.AllowCompound = True

# Sketch on XZ plane
sketch10 = body4.newObject("Sketcher::SketchObject", "Sketch009")
sketch10.AttachmentSupport = (doc.getObject("XZ_Plane003"), [""])
sketch10.MapMode = "FlatFace"
sketch10.AttachmentOffset = App.Placement(App.Vector(0, 0, -300), App.Rotation())
sketch10.addGeometry(Part.LineSegment(App.Vector(-1325, -40, 0), App.Vector(-1325, -390, 0)), False)
sketch10.addGeometry(Part.LineSegment(App.Vector(-1325, -390, 0), App.Vector(1325, -390, 0)), False)
sketch10.addGeometry(Part.LineSegment(App.Vector(1325, -390, 0), App.Vector(1325, -40, 0)), False)
sketch10.addGeometry(Part.LineSegment(App.Vector(1325, -40, 0), App.Vector(-1325, -40, 0)), False)
sketch10.addGeometry(Part.LineSegment(App.Vector(-1325, 390, 0), App.Vector(-1325, 40, 0)), False)
sketch10.addGeometry(Part.LineSegment(App.Vector(-1325, 40, 0), App.Vector(1325, 40, 0)), False)
sketch10.addGeometry(Part.LineSegment(App.Vector(1325, 40, 0), App.Vector(1325, 390, 0)), False)
sketch10.addGeometry(Part.LineSegment(App.Vector(1325, 390, 0), App.Vector(-1325, 390, 0)), False)
sketch10.addConstraint(Sketcher.Constraint("Coincident", 0, 2, 1, 1))
sketch10.addConstraint(Sketcher.Constraint("Coincident", 1, 2, 2, 1))
sketch10.addConstraint(Sketcher.Constraint("Coincident", 2, 2, 3, 1))
sketch10.addConstraint(Sketcher.Constraint("Coincident", 3, 2, 0, 1))
sketch10.addConstraint(Sketcher.Constraint("Coincident", 4, 2, 5, 1))
sketch10.addConstraint(Sketcher.Constraint("Coincident", 5, 2, 6, 1))
sketch10.addConstraint(Sketcher.Constraint("Coincident", 6, 2, 7, 1))
sketch10.addConstraint(Sketcher.Constraint("Coincident", 7, 2, 4, 1))
sketch10.addConstraint(Sketcher.Constraint("Vertical", 0))
sketch10.addConstraint(Sketcher.Constraint("Horizontal", 1))
sketch10.addConstraint(Sketcher.Constraint("Vertical", 2))
sketch10.addConstraint(Sketcher.Constraint("Horizontal", 3))
sketch10.addConstraint(Sketcher.Constraint("Vertical", 4))
sketch10.addConstraint(Sketcher.Constraint("Horizontal", 5))
sketch10.addConstraint(Sketcher.Constraint("Vertical", 6))
sketch10.addConstraint(Sketcher.Constraint("Horizontal", 7))
sketch10.addConstraint(Sketcher.Constraint("Symmetric", 2, 2, 4, 2, -1, 1))
sketch10.addConstraint(Sketcher.Constraint("Symmetric", 0, 2, 6, 2, -1, 1))
sketch10.addConstraint(Sketcher.Constraint("Vertical", 3, 2, 4, 2))
sketch10.addConstraint(Sketcher.Constraint("DistanceX", 1, 1, 1, 2, 2650.0))
sketch10.addConstraint(Sketcher.Constraint("DistanceY", 0, 2, 0, 1, 350.0))
sketch10.addConstraint(Sketcher.Constraint("DistanceY", 0, 2, -1, 1, 390.0))
sketch10.setExpression("Constraints[19]", "Params.sketch10_width")
sketch10.setExpression("Constraints[20]", "Params.sketch10_height")
pad4 = body4.newObject("PartDesign::Pad", "Pad003")
pad4.Profile = sketch10
pad4.setExpression("Length", "Params.pad4_length")

doc.recompute()
